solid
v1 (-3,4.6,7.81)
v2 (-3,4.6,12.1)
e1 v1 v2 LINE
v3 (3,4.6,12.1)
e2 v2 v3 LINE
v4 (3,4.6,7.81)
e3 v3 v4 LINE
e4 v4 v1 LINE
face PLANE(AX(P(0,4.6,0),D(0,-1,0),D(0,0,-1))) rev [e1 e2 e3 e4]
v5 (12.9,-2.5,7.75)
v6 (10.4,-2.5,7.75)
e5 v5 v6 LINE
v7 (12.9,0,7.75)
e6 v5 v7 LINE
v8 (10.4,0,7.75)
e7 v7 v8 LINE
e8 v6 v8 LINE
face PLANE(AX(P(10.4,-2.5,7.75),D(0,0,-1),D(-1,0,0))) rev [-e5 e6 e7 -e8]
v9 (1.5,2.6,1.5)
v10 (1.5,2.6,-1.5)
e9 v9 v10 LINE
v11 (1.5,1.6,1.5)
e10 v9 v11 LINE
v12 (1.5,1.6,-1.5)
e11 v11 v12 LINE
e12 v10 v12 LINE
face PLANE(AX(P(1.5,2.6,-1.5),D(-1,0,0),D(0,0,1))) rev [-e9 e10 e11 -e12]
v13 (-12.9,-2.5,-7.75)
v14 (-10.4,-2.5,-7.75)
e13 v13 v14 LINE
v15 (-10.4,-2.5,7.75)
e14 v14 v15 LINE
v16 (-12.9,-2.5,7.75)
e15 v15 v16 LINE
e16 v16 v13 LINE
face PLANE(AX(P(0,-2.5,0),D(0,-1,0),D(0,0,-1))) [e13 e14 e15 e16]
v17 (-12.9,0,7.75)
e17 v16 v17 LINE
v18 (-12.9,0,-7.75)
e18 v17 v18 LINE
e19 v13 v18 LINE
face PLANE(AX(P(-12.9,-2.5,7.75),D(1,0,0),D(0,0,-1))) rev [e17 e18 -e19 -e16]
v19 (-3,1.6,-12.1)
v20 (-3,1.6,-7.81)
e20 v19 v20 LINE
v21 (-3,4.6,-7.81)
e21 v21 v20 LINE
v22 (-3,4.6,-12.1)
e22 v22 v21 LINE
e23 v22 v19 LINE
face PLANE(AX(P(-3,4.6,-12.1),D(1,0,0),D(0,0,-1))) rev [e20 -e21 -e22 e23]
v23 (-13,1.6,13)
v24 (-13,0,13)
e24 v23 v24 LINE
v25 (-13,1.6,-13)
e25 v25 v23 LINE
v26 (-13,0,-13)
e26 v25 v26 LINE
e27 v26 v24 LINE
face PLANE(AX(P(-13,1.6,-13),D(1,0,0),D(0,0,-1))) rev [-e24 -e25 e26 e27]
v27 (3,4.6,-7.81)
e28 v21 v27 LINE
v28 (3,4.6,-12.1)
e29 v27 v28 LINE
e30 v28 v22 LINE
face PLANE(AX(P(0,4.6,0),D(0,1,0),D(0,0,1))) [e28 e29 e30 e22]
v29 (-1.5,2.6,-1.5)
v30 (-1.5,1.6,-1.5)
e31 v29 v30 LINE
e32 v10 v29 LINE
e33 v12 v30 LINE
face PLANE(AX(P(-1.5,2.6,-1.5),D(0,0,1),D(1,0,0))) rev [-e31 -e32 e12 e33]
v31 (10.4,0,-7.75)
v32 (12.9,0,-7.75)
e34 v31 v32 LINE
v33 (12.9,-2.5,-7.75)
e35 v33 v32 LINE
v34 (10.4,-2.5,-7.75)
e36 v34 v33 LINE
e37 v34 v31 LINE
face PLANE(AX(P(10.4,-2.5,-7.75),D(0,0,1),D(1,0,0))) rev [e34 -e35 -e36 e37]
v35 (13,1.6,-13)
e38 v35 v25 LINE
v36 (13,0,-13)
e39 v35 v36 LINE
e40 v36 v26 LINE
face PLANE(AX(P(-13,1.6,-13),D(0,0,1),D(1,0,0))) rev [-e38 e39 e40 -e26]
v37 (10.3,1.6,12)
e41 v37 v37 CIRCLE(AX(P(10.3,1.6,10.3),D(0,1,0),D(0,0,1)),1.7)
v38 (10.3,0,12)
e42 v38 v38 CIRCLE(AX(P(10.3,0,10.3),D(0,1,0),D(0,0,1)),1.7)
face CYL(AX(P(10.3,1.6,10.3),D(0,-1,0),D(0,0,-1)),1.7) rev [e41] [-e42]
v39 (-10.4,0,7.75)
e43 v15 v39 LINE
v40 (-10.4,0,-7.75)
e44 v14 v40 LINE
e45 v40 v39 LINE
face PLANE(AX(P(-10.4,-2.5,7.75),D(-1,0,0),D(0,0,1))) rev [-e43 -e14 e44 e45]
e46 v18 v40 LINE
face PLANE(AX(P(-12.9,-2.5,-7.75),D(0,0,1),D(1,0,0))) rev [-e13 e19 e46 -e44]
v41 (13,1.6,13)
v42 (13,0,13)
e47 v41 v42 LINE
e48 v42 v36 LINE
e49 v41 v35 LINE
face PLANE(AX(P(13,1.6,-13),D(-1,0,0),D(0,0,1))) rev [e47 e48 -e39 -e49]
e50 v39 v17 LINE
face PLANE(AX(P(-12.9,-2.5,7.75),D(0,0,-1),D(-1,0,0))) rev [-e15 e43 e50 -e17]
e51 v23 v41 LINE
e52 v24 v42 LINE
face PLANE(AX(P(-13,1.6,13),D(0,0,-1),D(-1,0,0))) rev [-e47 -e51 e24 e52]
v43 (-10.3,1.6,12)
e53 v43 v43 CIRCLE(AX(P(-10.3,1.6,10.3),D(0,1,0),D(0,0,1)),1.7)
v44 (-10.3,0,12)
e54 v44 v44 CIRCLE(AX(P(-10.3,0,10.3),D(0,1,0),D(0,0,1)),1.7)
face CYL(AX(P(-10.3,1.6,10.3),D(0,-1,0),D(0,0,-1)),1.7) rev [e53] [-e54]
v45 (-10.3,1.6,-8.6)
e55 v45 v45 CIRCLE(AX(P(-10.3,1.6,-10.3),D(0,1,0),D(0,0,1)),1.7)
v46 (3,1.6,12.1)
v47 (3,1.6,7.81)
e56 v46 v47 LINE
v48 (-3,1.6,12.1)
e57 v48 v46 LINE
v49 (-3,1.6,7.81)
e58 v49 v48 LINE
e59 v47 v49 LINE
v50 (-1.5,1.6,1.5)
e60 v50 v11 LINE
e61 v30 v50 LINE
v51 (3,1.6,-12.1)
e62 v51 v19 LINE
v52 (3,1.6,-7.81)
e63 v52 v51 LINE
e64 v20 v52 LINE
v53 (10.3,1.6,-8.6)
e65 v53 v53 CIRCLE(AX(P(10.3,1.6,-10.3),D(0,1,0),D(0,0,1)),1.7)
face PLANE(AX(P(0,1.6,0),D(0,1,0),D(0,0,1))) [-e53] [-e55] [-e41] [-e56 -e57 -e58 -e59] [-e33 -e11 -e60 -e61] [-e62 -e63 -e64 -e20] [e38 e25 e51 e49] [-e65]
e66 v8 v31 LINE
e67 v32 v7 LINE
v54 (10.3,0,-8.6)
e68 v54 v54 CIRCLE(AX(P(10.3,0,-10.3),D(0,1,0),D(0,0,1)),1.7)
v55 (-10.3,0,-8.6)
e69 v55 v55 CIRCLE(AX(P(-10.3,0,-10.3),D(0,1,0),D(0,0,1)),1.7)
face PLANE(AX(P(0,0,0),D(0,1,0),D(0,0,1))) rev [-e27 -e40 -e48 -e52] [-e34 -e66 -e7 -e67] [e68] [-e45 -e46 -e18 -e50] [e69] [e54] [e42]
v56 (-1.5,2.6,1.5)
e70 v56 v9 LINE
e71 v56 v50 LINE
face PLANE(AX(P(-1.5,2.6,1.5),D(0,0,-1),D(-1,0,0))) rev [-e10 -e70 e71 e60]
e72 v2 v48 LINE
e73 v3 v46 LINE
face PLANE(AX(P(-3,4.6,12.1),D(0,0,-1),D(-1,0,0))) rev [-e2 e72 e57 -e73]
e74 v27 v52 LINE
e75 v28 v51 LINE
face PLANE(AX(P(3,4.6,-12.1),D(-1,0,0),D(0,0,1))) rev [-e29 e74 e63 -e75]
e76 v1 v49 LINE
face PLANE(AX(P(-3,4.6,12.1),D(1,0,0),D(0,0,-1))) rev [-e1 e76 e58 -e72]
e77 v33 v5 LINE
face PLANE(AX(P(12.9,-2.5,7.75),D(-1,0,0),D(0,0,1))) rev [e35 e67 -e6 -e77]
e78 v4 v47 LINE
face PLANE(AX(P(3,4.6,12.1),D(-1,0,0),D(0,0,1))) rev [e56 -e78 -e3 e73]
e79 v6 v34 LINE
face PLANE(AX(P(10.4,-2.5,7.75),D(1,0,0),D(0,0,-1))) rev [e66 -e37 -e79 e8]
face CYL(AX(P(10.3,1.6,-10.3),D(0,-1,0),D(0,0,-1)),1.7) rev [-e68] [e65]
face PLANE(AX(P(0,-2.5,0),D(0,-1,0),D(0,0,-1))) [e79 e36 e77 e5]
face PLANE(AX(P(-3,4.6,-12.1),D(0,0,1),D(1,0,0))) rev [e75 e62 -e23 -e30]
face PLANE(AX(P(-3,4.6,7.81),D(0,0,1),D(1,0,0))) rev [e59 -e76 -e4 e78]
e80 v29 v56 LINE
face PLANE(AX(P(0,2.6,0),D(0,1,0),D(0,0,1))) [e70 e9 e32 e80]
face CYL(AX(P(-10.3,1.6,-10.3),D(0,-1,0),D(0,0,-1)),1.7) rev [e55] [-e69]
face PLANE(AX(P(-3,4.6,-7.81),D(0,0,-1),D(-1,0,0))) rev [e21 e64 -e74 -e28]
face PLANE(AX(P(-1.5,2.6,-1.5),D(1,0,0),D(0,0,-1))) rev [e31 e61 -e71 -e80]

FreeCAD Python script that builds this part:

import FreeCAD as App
import Part
import Sketcher
from FreeCAD import Vector
Q = App.Units.Quantity


def add_polygon(sketch, points):
    """Adds a closed chain of lines whose ends are joined by coincident constraints."""
    first, n = sketch.GeometryCount, len(points)
    for a, b in zip(points, points[1:] + points[:1]):
        sketch.addGeometry(Part.LineSegment(App.Vector(*a, 0), App.Vector(*b, 0)), False)
    for i in range(n):
        sketch.addConstraint(Sketcher.Constraint("Coincident", first + i, 2, first + (i + 1) % n, 1))

doc = App.newDocument("Part")
params = doc.addObject("Spreadsheet::Sheet", "Params")
for row, (alias, value) in enumerate([
    ("sketch1_diameter", "3.4 mm"),
    ("sketch1_width", "26 mm"),
    ("pad1_length", "1.6 mm"),
    ("sketch2_width", "6 mm"),
    ("sketch2_height", "4.29 mm"),
    ("pad2_length", "3 mm"),
    ("sketch3_width", "2.5 mm"),
    ("sketch3_height", "15.5 mm"),
    ("pad3_length", "2.5 mm"),
    ("sketch4_width", "3 mm"),
    ("pad4_length", "1 mm"),
], start=1):
    params.set(f"A{row}", alias)
    params.set(f"B{row}", "=" + value)
    params.setAlias(f"B{row}", alias)

body = doc.addObject("PartDesign::Body", "Body")

# Sketch on XZ plane
sketch1 = body.newObject("Sketcher::SketchObject", "Sketch")
sketch1.AttachmentSupport = (doc.getObject("XZ_Plane"), [""])
sketch1.MapMode = "FlatFace"
add_polygon(sketch1, [(-13, -13), (-13, 13), (13, 13), (13, -13)])  # lines 0-3
sketch1.addGeometry(Part.Circle(Vector(-10.3, 10.3, 0), Vector(0, 0, 1), 1.7), False)  # 4
sketch1.addGeometry(Part.Circle(Vector(10.3, 10.3, 0), Vector(0, 0, 1), 1.7), False)  # 5
sketch1.addGeometry(Part.Circle(Vector(-10.3, -10.3, 0), Vector(0, 0, 1), 1.7), False)  # 6
sketch1.addGeometry(Part.Circle(Vector(10.3, -10.3, 0), Vector(0, 0, 1), 1.7), False)  # 7
sketch1.addConstraint([
    Sketcher.Constraint("Vertical", 0),
    Sketcher.Constraint("Horizontal", 1),
    Sketcher.Constraint("Vertical", 2),
    Sketcher.Constraint("Horizontal", 3),
    Sketcher.Constraint("Equal", 4, 5),
    Sketcher.Constraint("Equal", 5, 6),
    Sketcher.Constraint("Equal", 6, 7),
    Sketcher.Constraint("Symmetric", 5, 3, 6, 3, -1, 1),
    Sketcher.Constraint("Symmetric", 4, 3, 7, 3, -1, 1),
    Sketcher.Constraint("Symmetric", 0, 2, 2, 2, -1, 1),
    Sketcher.Constraint("Symmetric", 4, 3, 5, 3, -2),
    Sketcher.Constraint("Equal", 3, 0),
    Sketcher.Constraint("Diameter", 4, Q("3.4 mm")),
    Sketcher.Constraint("DistanceX", 1, 1, 1, 2, Q("26 mm")),
    Sketcher.Constraint("DistanceX", 4, 3, -1, 1, Q("10.3 mm")),
    Sketcher.Constraint("DistanceY", -1, 1, 4, 3, Q("10.3 mm")),
])
sketch1.setExpression("Constraints[16]", "Params.sketch1_diameter")
sketch1.setExpression("Constraints[17]", "Params.sketch1_width")
pad1 = body.newObject("PartDesign::Pad", "Pad")
pad1.Profile = sketch1
pad1.setExpression("Length", "Params.pad1_length")
pad1.Reversed = True

# Sketch on XZ plane
sketch2 = body.newObject("Sketcher::SketchObject", "Sketch001")
sketch2.AttachmentSupport = (doc.getObject("XZ_Plane"), [""])
sketch2.MapMode = "FlatFace"
sketch2.AttachmentOffset = App.Placement(Vector(0, 0, -1.6), App.Rotation())
add_polygon(sketch2, [(-3, -12.1), (-3, -7.81), (3, -7.81), (3, -12.1)])  # lines 0-3
add_polygon(sketch2, [(-3, 7.81), (-3, 12.1), (3, 12.1), (3, 7.81)])  # lines 4-7
sketch2.addConstraint([
    Sketcher.Constraint("Vertical", 0),
    Sketcher.Constraint("Horizontal", 1),
    Sketcher.Constraint("Vertical", 2),
    Sketcher.Constraint("Horizontal", 3),
    Sketcher.Constraint("Vertical", 4),
    Sketcher.Constraint("Horizontal", 5),
    Sketcher.Constraint("Vertical", 6),
    Sketcher.Constraint("Horizontal", 7),
    Sketcher.Constraint("Symmetric", 2, 2, 4, 2, -1, 1),
    Sketcher.Constraint("Symmetric", 0, 2, 6, 2, -1, 1),
    Sketcher.Constraint("Vertical", 3, 2, 4, 2),
    Sketcher.Constraint("DistanceX", 1, 1, 1, 2, Q("6 mm")),
    Sketcher.Constraint("DistanceY", 0, 1, 0, 2, Q("4.29 mm")),
    Sketcher.Constraint("DistanceY", 2, 2, -1, 1, Q("12.1 mm")),
])
sketch2.setExpression("Constraints[19]", "Params.sketch2_width")
sketch2.setExpression("Constraints[20]", "Params.sketch2_height")
pad2 = body.newObject("PartDesign::Pad", "Pad001")
pad2.Profile = sketch2
pad2.setExpression("Length", "Params.pad2_length")
pad2.Reversed = True

# Sketch on XZ plane
sketch3 = body.newObject("Sketcher::SketchObject", "Sketch002")
sketch3.AttachmentSupport = (doc.getObject("XZ_Plane"), [""])
sketch3.MapMode = "FlatFace"
add_polygon(sketch3, [(-12.9, 7.75), (-12.9, -7.75), (-10.4, -7.75), (-10.4, 7.75)])  # lines 0-3
add_polygon(sketch3, [(10.4, 7.75), (10.4, -7.75), (12.9, -7.75), (12.9, 7.75)])  # lines 4-7
sketch3.addConstraint([
    Sketcher.Constraint("Vertical", 0),
    Sketcher.Constraint("Horizontal", 1),
    Sketcher.Constraint("Vertical", 2),
    Sketcher.Constraint("Horizontal", 3),
    Sketcher.Constraint("Vertical", 4),
    Sketcher.Constraint("Horizontal", 5),
    Sketcher.Constraint("Vertical", 6),
    Sketcher.Constraint("Horizontal", 7),
    Sketcher.Constraint("Symmetric", 2, 2, 4, 2, -1, 1),
    Sketcher.Constraint("Symmetric", 0, 2, 6, 2, -1, 1),
    Sketcher.Constraint("Horizontal", 1, 2, 4, 2),
    Sketcher.Constraint("DistanceX", 1, 1, 1, 2, Q("2.5 mm")),
    Sketcher.Constraint("DistanceY", 0, 2, 0, 1, Q("15.5 mm")),
    Sketcher.Constraint("DistanceX", 0, 2, -1, 1, Q("12.9 mm")),
])
sketch3.setExpression("Constraints[19]", "Params.sketch3_width")
sketch3.setExpression("Constraints[20]", "Params.sketch3_height")
pad3 = body.newObject("PartDesign::Pad", "Pad002")
pad3.Profile = sketch3
pad3.setExpression("Length", "Params.pad3_length")

# Sketch on XZ plane
sketch4 = body.newObject("Sketcher::SketchObject", "Sketch003")
sketch4.AttachmentSupport = (doc.getObject("XZ_Plane"), [""])
sketch4.MapMode = "FlatFace"
sketch4.AttachmentOffset = App.Placement(Vector(0, 0, -1.6), App.Rotation())
add_polygon(sketch4, [(-1.5, -1.5), (-1.5, 1.5), (1.5, 1.5), (1.5, -1.5)])  # lines 0-3
sketch4.addConstraint([
    Sketcher.Constraint("Vertical", 0),
    Sketcher.Constraint("Horizontal", 1),
    Sketcher.Constraint("Vertical", 2),
    Sketcher.Constraint("Horizontal", 3),
    Sketcher.Constraint("Symmetric", 0, 2, 2, 2, -1, 1),
    Sketcher.Constraint("Equal", 3, 0),
    Sketcher.Constraint("DistanceX", 1, 1, 1, 2, Q("3 mm")),
])
sketch4.setExpression("Constraints[10]", "Params.sketch4_width")
pad4 = body.newObject("PartDesign::Pad", "Pad003")
pad4.Profile = sketch4
pad4.setExpression("Length", "Params.pad4_length")
pad4.Reversed = True

doc.recompute()
